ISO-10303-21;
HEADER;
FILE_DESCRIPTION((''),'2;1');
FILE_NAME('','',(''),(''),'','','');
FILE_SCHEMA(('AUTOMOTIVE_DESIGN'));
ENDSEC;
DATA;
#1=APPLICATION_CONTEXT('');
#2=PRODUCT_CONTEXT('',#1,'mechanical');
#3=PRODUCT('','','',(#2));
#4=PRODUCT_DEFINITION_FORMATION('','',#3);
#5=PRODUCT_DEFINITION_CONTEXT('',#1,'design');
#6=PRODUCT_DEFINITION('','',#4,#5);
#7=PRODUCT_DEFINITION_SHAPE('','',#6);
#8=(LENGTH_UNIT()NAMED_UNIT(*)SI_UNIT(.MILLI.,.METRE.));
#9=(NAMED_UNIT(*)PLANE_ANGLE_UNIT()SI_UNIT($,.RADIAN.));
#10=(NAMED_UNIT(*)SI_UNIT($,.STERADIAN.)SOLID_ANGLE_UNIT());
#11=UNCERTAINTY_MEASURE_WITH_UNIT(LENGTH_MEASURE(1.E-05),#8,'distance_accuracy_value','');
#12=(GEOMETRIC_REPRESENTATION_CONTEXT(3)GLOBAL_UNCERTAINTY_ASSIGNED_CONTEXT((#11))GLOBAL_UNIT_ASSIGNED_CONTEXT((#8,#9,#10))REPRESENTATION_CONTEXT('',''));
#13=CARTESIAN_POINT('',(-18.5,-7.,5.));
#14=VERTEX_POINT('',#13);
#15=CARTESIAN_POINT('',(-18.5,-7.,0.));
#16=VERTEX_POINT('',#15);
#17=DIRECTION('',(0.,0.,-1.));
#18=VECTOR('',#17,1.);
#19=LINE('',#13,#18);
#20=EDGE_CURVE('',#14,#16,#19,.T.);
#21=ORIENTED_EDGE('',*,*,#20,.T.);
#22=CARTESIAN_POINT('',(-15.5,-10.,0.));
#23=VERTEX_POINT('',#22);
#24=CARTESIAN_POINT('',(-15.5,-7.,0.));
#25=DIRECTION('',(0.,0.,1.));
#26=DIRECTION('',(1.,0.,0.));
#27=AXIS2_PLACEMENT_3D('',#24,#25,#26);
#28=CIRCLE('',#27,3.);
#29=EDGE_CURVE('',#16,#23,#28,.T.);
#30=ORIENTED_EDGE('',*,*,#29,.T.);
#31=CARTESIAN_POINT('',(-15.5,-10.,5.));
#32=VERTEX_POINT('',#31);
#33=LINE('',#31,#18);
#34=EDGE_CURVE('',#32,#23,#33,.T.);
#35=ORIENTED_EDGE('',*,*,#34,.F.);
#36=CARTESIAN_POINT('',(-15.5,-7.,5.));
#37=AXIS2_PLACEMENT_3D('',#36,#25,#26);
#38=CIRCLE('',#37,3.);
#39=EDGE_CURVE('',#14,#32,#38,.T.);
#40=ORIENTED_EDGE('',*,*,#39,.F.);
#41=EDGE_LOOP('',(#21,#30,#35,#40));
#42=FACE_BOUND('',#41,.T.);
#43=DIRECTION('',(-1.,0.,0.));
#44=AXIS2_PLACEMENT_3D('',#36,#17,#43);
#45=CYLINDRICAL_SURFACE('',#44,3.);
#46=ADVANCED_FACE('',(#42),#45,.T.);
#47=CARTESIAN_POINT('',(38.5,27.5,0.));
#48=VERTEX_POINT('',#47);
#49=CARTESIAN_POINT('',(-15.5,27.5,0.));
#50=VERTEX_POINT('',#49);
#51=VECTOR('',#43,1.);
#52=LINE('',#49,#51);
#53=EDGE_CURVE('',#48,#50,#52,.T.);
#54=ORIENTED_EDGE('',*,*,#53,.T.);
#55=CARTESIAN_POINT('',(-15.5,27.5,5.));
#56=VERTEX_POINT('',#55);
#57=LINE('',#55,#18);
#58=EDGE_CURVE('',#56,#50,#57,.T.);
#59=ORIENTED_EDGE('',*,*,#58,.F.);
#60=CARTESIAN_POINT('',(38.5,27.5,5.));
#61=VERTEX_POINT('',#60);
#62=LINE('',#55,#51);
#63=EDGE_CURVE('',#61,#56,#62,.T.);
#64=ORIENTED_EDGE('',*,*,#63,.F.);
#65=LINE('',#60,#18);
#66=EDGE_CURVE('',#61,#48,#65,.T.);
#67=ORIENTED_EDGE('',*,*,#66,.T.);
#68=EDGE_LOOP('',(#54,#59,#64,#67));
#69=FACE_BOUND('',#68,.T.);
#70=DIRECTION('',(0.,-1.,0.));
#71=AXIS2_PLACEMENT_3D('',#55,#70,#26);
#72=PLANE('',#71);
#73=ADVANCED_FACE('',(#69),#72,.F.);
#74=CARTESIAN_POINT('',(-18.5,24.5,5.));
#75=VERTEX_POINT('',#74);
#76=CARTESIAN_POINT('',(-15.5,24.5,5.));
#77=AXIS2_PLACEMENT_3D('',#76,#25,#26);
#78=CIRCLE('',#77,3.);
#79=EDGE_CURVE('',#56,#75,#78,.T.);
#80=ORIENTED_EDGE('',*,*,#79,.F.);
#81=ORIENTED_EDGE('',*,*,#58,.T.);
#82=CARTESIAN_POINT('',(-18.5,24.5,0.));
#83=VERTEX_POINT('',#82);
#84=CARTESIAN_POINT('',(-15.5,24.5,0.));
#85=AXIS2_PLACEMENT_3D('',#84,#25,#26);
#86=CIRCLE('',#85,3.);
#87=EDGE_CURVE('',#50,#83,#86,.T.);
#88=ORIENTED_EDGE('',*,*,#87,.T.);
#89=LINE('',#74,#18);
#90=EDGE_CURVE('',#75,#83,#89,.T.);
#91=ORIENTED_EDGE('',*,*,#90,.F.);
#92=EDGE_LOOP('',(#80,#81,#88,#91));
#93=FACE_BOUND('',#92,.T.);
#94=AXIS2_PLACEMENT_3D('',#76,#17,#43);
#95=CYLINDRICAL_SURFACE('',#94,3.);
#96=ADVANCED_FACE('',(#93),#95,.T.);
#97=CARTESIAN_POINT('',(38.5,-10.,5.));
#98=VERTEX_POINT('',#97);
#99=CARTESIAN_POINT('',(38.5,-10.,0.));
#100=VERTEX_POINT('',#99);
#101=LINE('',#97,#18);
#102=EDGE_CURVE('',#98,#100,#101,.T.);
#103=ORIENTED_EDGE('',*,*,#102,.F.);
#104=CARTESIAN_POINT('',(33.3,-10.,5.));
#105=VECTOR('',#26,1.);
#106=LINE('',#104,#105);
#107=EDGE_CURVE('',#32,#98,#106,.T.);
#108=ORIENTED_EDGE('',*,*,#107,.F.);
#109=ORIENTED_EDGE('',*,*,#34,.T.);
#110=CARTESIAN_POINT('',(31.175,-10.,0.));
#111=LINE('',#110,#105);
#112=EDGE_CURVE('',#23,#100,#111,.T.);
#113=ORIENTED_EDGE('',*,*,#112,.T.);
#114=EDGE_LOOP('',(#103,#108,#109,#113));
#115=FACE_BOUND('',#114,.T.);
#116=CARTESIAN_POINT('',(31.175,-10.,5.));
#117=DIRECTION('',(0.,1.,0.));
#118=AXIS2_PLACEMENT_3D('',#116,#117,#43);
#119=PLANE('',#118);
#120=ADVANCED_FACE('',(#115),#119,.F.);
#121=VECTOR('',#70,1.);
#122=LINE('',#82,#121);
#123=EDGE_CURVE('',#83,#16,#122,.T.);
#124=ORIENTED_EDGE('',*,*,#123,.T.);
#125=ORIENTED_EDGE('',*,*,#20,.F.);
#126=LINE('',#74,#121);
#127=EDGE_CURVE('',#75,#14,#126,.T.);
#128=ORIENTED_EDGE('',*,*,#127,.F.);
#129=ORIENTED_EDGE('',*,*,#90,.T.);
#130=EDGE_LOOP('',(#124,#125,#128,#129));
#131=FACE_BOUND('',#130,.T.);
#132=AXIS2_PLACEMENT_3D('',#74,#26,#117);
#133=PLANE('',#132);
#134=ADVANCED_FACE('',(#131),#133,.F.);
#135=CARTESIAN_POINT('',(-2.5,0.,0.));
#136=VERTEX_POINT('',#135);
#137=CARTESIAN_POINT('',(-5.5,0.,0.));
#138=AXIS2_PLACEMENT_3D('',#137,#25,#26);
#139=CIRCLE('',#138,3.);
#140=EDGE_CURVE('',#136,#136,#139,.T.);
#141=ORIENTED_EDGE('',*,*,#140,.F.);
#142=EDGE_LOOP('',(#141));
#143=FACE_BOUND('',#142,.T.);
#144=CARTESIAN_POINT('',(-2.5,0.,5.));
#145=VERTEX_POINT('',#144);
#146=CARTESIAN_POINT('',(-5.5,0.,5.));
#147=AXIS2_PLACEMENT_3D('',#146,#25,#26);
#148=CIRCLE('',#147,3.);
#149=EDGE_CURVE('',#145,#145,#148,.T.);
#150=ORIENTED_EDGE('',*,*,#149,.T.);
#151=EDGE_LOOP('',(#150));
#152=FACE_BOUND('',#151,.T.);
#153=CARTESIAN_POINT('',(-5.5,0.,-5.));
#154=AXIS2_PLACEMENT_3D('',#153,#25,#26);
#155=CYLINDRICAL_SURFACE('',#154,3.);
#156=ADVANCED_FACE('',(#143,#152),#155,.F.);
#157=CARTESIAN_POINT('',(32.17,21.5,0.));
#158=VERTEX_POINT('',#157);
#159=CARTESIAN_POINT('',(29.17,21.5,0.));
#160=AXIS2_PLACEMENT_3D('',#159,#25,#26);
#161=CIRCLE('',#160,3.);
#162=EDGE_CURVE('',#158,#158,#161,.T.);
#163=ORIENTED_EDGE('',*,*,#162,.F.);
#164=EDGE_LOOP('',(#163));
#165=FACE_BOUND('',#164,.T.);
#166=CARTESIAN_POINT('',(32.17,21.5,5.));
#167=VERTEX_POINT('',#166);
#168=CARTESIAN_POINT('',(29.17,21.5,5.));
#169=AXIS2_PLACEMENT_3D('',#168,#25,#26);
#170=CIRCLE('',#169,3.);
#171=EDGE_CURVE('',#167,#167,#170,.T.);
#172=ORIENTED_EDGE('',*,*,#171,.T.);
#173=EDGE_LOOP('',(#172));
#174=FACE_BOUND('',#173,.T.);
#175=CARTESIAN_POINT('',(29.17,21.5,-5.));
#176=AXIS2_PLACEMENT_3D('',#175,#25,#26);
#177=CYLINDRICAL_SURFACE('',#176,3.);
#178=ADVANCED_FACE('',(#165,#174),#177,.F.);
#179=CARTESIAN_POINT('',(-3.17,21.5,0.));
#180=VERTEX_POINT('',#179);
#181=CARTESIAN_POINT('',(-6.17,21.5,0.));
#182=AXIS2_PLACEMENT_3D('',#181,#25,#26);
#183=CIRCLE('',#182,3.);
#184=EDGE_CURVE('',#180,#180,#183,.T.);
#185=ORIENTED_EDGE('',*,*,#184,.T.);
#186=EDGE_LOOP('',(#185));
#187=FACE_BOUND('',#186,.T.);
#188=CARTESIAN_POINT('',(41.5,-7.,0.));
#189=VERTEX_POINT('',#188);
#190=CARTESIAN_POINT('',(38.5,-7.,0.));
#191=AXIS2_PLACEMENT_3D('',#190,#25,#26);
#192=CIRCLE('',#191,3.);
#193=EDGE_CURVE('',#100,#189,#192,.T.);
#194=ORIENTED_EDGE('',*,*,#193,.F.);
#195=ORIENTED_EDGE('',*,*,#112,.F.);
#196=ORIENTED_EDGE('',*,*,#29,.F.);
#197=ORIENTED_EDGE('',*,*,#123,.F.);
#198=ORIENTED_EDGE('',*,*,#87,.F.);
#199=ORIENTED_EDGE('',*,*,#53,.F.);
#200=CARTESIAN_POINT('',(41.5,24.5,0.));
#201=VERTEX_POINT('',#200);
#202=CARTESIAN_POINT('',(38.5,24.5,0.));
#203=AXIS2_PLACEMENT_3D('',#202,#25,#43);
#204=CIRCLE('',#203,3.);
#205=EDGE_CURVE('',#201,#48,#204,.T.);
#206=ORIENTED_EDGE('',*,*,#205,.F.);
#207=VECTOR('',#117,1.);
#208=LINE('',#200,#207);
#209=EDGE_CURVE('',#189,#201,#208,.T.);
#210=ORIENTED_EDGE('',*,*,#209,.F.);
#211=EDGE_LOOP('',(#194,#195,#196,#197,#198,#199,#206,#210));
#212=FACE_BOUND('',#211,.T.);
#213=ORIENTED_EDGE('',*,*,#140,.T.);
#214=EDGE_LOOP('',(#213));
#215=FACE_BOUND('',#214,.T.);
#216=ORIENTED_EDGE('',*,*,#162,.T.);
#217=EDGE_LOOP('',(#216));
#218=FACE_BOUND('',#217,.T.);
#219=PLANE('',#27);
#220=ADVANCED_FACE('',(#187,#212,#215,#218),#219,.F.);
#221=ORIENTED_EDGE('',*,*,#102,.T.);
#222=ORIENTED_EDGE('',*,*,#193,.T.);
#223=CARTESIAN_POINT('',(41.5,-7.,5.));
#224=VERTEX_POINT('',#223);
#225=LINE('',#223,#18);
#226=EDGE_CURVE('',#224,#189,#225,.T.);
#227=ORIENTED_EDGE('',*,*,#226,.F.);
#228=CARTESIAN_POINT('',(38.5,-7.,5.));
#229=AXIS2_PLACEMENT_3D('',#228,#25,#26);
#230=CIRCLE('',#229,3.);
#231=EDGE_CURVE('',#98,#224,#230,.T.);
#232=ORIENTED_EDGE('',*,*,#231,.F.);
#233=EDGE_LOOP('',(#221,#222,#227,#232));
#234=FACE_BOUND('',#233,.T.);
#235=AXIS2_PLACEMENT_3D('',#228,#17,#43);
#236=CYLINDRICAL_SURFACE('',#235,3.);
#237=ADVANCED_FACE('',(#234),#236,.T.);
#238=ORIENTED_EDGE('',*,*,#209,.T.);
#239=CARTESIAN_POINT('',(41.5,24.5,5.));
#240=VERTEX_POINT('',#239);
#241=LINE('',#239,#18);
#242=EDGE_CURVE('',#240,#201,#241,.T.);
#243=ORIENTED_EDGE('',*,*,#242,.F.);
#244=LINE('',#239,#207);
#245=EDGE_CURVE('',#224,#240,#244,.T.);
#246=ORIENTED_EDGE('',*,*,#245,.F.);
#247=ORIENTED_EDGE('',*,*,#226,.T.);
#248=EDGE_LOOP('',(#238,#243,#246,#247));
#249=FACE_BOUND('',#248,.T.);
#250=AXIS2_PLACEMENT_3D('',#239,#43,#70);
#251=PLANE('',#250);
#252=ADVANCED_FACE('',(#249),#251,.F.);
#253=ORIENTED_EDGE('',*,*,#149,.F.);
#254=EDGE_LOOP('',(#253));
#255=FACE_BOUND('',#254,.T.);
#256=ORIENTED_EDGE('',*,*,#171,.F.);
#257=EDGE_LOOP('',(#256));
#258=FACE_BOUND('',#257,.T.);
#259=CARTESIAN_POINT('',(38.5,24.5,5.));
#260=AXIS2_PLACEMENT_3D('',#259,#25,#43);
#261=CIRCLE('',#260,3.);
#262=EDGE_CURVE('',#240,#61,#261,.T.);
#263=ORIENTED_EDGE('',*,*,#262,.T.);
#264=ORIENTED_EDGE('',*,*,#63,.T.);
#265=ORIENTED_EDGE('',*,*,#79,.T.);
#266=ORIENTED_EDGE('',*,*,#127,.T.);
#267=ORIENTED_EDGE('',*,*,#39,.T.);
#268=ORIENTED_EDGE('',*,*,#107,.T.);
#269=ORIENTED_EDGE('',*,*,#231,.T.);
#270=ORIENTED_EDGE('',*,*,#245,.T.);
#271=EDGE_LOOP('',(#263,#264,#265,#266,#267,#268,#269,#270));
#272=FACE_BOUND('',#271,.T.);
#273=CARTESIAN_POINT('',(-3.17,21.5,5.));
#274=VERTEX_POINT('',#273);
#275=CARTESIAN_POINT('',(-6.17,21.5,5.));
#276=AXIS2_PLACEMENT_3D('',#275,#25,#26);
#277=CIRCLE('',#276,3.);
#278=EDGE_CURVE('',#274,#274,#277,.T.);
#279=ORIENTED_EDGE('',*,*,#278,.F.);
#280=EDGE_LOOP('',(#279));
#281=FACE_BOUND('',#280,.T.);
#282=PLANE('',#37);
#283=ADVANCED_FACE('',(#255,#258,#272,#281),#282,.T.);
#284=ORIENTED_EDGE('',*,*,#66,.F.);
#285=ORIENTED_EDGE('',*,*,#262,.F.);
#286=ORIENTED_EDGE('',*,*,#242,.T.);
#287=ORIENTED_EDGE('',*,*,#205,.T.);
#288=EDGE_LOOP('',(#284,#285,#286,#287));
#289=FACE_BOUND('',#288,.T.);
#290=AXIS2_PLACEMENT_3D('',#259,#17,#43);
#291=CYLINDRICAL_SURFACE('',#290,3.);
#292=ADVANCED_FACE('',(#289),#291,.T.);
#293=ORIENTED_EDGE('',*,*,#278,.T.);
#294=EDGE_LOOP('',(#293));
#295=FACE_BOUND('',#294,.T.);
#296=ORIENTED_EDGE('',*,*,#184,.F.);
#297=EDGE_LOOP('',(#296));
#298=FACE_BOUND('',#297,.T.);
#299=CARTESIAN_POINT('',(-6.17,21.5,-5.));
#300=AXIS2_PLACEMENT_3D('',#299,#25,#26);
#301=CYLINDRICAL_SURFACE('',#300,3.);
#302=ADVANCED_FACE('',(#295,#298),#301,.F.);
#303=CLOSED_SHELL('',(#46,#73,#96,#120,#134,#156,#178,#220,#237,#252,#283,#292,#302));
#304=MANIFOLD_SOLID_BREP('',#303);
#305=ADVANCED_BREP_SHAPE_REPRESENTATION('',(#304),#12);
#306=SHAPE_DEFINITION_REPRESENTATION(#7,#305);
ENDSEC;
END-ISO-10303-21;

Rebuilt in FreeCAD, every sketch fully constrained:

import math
import FreeCAD as App
import Part
import Sketcher

V = App.Vector

doc = App.newDocument("Part")
params = doc.addObject("Spreadsheet::Sheet", "Params")
for row, (alias, value) in enumerate([
    ("sketch1_radius", "3 mm"),
    ("sketch1_width", "54 mm"),
    ("sketch1_height", "31.5 mm"),
    ("pad1_length", "5 mm"),
    ("sketch2_diameter", "6 mm"),
    ("pocket1_length", "10 mm"),
    ("sketch3_diameter", "6 mm"),
    ("pocket2_length", "10 mm"),
], start=1):
    params.set(f"A{row}", alias)
    params.set(f"B{row}", "=" + value)
    params.setAlias(f"B{row}", alias)

body = doc.addObject("PartDesign::Body", "Body")

# Sketch on XY plane
sketch1 = doc.addObject("Sketcher::SketchObject", "Sketch")
body.addObject(sketch1)
sketch1.AttachmentSupport = (doc.XY_Plane, [""])
sketch1.MapMode = "FlatFace"
sketch1.addGeometry([
    Part.LineSegment(V(38.5, 27.5, 0), V(-15.5, 27.5, 0)),  # 0
    Part.ArcOfCircle(Part.Circle(V(-15.5, 24.5, 0), V(0, 0, 1), 3), math.radians(90), math.radians(180)),  # 1
    Part.LineSegment(V(-18.5, 24.5, 0), V(-18.5, -7, 0)),  # 2
    Part.ArcOfCircle(Part.Circle(V(-15.5, -7, 0), V(0, 0, 1), 3), math.radians(180), math.radians(270)),  # 3
    Part.LineSegment(V(-15.5, -10, 0), V(38.5, -10, 0)),  # 4
    Part.ArcOfCircle(Part.Circle(V(38.5, -7, 0), V(0, 0, 1), 3), math.radians(-90), math.radians(0)),  # 5
    Part.LineSegment(V(41.5, -7, 0), V(41.5, 24.5, 0)),  # 6
    Part.ArcOfCircle(Part.Circle(V(38.5, 24.5, 0), V(0, 0, 1), 3), math.radians(0), math.radians(90)),  # 7
], False)
sketch1.addConstraint([
    Sketcher.Constraint("Tangent", 0, 2, 1, 1),
    Sketcher.Constraint("Tangent", 1, 2, 2, 1),
    Sketcher.Constraint("Tangent", 2, 2, 3, 1),
    Sketcher.Constraint("Tangent", 3, 2, 4, 1),
    Sketcher.Constraint("Tangent", 4, 2, 5, 1),
    Sketcher.Constraint("Tangent", 5, 2, 6, 1),
    Sketcher.Constraint("Tangent", 6, 2, 7, 1),
    Sketcher.Constraint("Tangent", 7, 2, 0, 1),
    Sketcher.Constraint("Horizontal", 0),
    Sketcher.Constraint("Vertical", 2),
    Sketcher.Constraint("Horizontal", 4),
    Sketcher.Constraint("Vertical", 6),
    Sketcher.Constraint("Equal", 1, 3),
    Sketcher.Constraint("Equal", 3, 5),
    Sketcher.Constraint("Equal", 5, 7),
    Sketcher.Constraint("Radius", 1, 3.0),
    Sketcher.Constraint("DistanceX", 0, 2, 0, 1, 54.0),
    Sketcher.Constraint("DistanceY", 2, 2, 2, 1, 31.5),
    Sketcher.Constraint("DistanceY", 3, 3, -1, 1, 7.0),
    Sketcher.Constraint("DistanceX", 1, 3, -1, 1, 15.5),
])
sketch1.setExpression("Constraints[15]", "Params.sketch1_radius")
sketch1.setExpression("Constraints[16]", "Params.sketch1_width")
sketch1.setExpression("Constraints[17]", "Params.sketch1_height")
pad1 = doc.addObject("PartDesign::Pad", "Pad")
body.addObject(pad1)
pad1.Profile = sketch1
pad1.setExpression("Length", "Params.pad1_length")

# Sketch on XY plane
sketch2 = doc.addObject("Sketcher::SketchObject", "Sketch001")
body.addObject(sketch2)
sketch2.AttachmentSupport = (doc.XY_Plane, [""])
sketch2.MapMode = "FlatFace"
sketch2.AttachmentOffset = App.Placement(V(0, 0, 5), App.Rotation())
sketch2.addGeometry([
    Part.Circle(V(-6.17, 21.5, 0), V(0, 0, 1), 3),
    Part.Circle(V(29.17, 21.5, 0), V(0, 0, 1), 3),
], False)
sketch2.addConstraint([
    Sketcher.Constraint("Equal", 0, 1),
    Sketcher.Constraint("Horizontal", 0, 3, 1, 3),
    Sketcher.Constraint("Diameter", 0, 6.0),
    Sketcher.Constraint("DistanceY", -1, 1, 0, 3, 21.5),
    Sketcher.Constraint("DistanceX", 0, 3, -1, 1, 6.17),
    Sketcher.Constraint("DistanceX", -1, 1, 1, 3, 29.17),
])
sketch2.setExpression("Constraints[2]", "Params.sketch2_diameter")
pocket1 = doc.addObject("PartDesign::Pocket", "Pocket")
body.addObject(pocket1)
pocket1.Profile = sketch2
pocket1.setExpression("Length", "Params.pocket1_length")

# Sketch on XY plane
sketch3 = doc.addObject("Sketcher::SketchObject", "Sketch002")
body.addObject(sketch3)
sketch3.AttachmentSupport = (doc.XY_Plane, [""])
sketch3.MapMode = "FlatFace"
sketch3.AttachmentOffset = App.Placement(V(0, 0, 5), App.Rotation())
sketch3.addGeometry(Part.Circle(V(-5.5, 0, 0), V(0, 0, 1), 3), False)
sketch3.addConstraint([
    Sketcher.Constraint("PointOnObject", 0, 3, -1),
    Sketcher.Constraint("Diameter", 0, 6.0),
    Sketcher.Constraint("DistanceX", 0, 3, -1, 1, 5.5),
])
sketch3.setExpression("Constraints[1]", "Params.sketch3_diameter")
pocket2 = doc.addObject("PartDesign::Pocket", "Pocket001")
body.addObject(pocket2)
pocket2.Profile = sketch3
pocket2.setExpression("Length", "Params.pocket2_length")

doc.recompute()
